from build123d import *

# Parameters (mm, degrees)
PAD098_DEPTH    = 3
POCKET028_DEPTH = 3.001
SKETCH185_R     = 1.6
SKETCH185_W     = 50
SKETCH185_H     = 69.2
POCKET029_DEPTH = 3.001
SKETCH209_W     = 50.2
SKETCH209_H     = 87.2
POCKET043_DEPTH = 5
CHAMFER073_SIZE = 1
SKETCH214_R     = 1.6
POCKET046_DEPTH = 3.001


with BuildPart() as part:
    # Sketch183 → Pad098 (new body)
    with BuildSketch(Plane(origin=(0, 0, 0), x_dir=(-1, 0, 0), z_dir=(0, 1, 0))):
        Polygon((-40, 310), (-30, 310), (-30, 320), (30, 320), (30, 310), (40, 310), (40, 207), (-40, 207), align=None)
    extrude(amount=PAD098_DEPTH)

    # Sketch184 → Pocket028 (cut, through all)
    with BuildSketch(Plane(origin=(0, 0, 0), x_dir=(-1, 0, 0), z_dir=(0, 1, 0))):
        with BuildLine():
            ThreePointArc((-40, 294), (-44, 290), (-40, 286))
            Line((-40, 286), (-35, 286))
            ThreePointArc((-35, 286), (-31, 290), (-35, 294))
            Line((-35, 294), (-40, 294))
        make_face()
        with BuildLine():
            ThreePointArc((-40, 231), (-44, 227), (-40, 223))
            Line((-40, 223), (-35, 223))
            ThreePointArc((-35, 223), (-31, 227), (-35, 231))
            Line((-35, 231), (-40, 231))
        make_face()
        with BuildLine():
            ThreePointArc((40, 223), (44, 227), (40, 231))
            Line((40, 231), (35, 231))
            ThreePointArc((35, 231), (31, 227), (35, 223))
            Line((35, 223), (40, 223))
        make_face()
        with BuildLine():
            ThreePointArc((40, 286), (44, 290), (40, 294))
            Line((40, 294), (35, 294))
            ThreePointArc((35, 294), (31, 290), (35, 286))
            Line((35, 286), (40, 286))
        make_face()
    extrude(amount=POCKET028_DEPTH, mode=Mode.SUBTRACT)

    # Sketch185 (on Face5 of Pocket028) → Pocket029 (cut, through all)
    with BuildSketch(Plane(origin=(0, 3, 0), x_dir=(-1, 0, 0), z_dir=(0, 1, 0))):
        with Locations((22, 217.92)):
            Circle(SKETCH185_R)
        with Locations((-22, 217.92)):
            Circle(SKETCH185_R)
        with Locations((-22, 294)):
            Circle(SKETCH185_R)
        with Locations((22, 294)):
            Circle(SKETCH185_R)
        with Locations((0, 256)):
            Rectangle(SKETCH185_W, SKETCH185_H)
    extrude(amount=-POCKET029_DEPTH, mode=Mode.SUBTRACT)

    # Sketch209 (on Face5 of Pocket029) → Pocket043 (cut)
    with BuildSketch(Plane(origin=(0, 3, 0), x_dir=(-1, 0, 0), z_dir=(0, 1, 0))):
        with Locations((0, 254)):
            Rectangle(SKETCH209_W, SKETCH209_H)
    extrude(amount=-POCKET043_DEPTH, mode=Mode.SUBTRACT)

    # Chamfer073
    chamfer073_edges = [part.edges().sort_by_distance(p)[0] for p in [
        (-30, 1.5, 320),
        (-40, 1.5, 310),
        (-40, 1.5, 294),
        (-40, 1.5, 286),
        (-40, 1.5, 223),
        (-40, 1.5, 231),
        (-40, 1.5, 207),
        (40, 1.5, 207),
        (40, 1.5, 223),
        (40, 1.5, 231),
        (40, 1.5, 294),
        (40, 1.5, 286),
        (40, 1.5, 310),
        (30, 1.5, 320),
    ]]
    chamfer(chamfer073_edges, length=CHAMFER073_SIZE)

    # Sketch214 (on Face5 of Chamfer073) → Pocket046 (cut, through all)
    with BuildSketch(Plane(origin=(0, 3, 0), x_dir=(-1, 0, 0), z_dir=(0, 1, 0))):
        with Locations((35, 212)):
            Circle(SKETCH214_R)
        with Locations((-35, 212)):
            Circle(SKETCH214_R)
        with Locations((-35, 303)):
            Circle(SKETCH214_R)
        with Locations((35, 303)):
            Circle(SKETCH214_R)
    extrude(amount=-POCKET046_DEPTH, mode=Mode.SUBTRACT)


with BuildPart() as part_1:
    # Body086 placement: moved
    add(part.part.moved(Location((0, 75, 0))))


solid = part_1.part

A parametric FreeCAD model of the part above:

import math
import FreeCAD as App
import Part
import Sketcher
Q = App.Units.Quantity


def edges_at(feature, points):
    """Names of the edges that pass closest to the given points."""
    edges = feature.Shape.Edges
    near = lambda p: min(range(len(edges)), key=lambda i: edges[i].distToShape(Part.Vertex(*p))[0])
    return sorted({f"Edge{near(p) + 1}" for p in points})

doc = App.newDocument("Part")
body = doc.addObject("PartDesign::Body", "Body")

sketch1 = body.newObject("Sketcher::SketchObject", "Sketch")
sketch1.AttachmentSupport = (doc.getObject("XZ_Plane"), [""])
sketch1.MapMode = "FlatFace"
sketch1.addGeometry(Part.LineSegment(App.Vector(30, 310, 0), App.Vector(40, 310, 0)), False)
sketch1.addGeometry(Part.LineSegment(App.Vector(40, 310, 0), App.Vector(40, 207, 0)), False)
sketch1.addGeometry(Part.LineSegment(App.Vector(40, 207, 0), App.Vector(-40, 207, 0)), False)
sketch1.addGeometry(Part.LineSegment(App.Vector(-40, 207, 0), App.Vector(-40, 310, 0)), False)
sketch1.addGeometry(Part.LineSegment(App.Vector(-40, 310, 0), App.Vector(-30, 310, 0)), False)
sketch1.addGeometry(Part.LineSegment(App.Vector(-30, 310, 0), App.Vector(-30, 320, 0)), False)
sketch1.addGeometry(Part.LineSegment(App.Vector(-30, 320, 0), App.Vector(30, 320, 0)), False)
sketch1.addGeometry(Part.LineSegment(App.Vector(30, 320, 0), App.Vector(30, 310, 0)), False)
sketch1.addConstraint(Sketcher.Constraint("Coincident", 0, 2, 1, 1))
sketch1.addConstraint(Sketcher.Constraint("Coincident", 1, 2, 2, 1))
sketch1.addConstraint(Sketcher.Constraint("Coincident", 2, 2, 3, 1))
sketch1.addConstraint(Sketcher.Constraint("Coincident", 3, 2, 4, 1))
sketch1.addConstraint(Sketcher.Constraint("Coincident", 4, 2, 5, 1))
sketch1.addConstraint(Sketcher.Constraint("Coincident", 5, 2, 6, 1))
sketch1.addConstraint(Sketcher.Constraint("Coincident", 6, 2, 7, 1))
sketch1.addConstraint(Sketcher.Constraint("Coincident", 7, 2, 0, 1))
sketch1.addConstraint(Sketcher.Constraint("Horizontal", 0))
sketch1.addConstraint(Sketcher.Constraint("Vertical", 1))
sketch1.addConstraint(Sketcher.Constraint("Horizontal", 2))
sketch1.addConstraint(Sketcher.Constraint("Vertical", 3))
sketch1.addConstraint(Sketcher.Constraint("Horizontal", 4))
sketch1.addConstraint(Sketcher.Constraint("Vertical", 5))
sketch1.addConstraint(Sketcher.Constraint("Horizontal", 6))
sketch1.addConstraint(Sketcher.Constraint("Vertical", 7))
sketch1.addConstraint(Sketcher.Constraint("Symmetric", 0, 2, 3, 2, -2))
sketch1.addConstraint(Sketcher.Constraint("Equal", 0, 4))
sketch1.addConstraint(Sketcher.Constraint("Equal", 4, 5))
sketch1.addConstraint(Sketcher.Constraint("DistanceX", 0, 1, 0, 2, Q("10 mm")))
sketch1.addConstraint(Sketcher.Constraint("DistanceX", 2, 2, 2, 1, Q("80 mm")))
sketch1.addConstraint(Sketcher.Constraint("DistanceY", 1, 2, 1, 1, Q("103 mm")))
sketch1.addConstraint(Sketcher.Constraint("DistanceY", -1, 1, 0, 2, Q("310 mm")))
pad1 = body.newObject("PartDesign::Pad", "Pad")
pad1.Profile = sketch1
pad1.Length = 3
pad1.Reversed = True

sketch2 = body.newObject("Sketcher::SketchObject", "Sketch001")
sketch2.AttachmentSupport = (doc.getObject("XZ_Plane"), [""])
sketch2.MapMode = "FlatFace"
sketch2.addGeometry(Part.ArcOfCircle(Part.Circle(App.Vector(40, 290, 0), App.Vector(0, 0, 1), 4), math.radians(-90), math.radians(90)), False)
sketch2.addGeometry(Part.LineSegment(App.Vector(40, 286, 0), App.Vector(35, 286, 0)), False)
sketch2.addGeometry(Part.ArcOfCircle(Part.Circle(App.Vector(35, 290, 0), App.Vector(0, 0, 1), 4), math.radians(90), math.radians(270)), False)
sketch2.addGeometry(Part.LineSegment(App.Vector(35, 294, 0), App.Vector(40, 294, 0)), False)
sketch2.addGeometry(Part.ArcOfCircle(Part.Circle(App.Vector(40, 227, 0), App.Vector(0, 0, 1), 4), math.radians(-90), math.radians(90)), False)
sketch2.addGeometry(Part.LineSegment(App.Vector(40, 223, 0), App.Vector(35, 223, 0)), False)
sketch2.addGeometry(Part.ArcOfCircle(Part.Circle(App.Vector(35, 227, 0), App.Vector(0, 0, 1), 4), math.radians(90), math.radians(270)), False)
sketch2.addGeometry(Part.LineSegment(App.Vector(35, 231, 0), App.Vector(40, 231, 0)), False)
sketch2.addGeometry(Part.ArcOfCircle(Part.Circle(App.Vector(-40, 227, 0), App.Vector(0, 0, 1), 4), math.radians(90), math.radians(270)), False)
sketch2.addGeometry(Part.LineSegment(App.Vector(-40, 231, 0), App.Vector(-35, 231, 0)), False)
sketch2.addGeometry(Part.ArcOfCircle(Part.Circle(App.Vector(-35, 227, 0), App.Vector(0, 0, 1), 4), math.radians(-90), math.radians(90)), False)
sketch2.addGeometry(Part.LineSegment(App.Vector(-35, 223, 0), App.Vector(-40, 223, 0)), False)
sketch2.addGeometry(Part.ArcOfCircle(Part.Circle(App.Vector(-40, 290, 0), App.Vector(0, 0, 1), 4), math.radians(90), math.radians(270)), False)
sketch2.addGeometry(Part.LineSegment(App.Vector(-40, 294, 0), App.Vector(-35, 294, 0)), False)
sketch2.addGeometry(Part.ArcOfCircle(Part.Circle(App.Vector(-35, 290, 0), App.Vector(0, 0, 1), 4), math.radians(-90), math.radians(90)), False)
sketch2.addGeometry(Part.LineSegment(App.Vector(-35, 286, 0), App.Vector(-40, 286, 0)), False)
sketch2.addConstraint(Sketcher.Constraint("Tangent", 0, 1, 1, 1))
sketch2.addConstraint(Sketcher.Constraint("Tangent", 1, 2, 2, 2))
sketch2.addConstraint(Sketcher.Constraint("Tangent", 2, 1, 3, 1))
sketch2.addConstraint(Sketcher.Constraint("Tangent", 3, 2, 0, 2))
sketch2.addConstraint(Sketcher.Constraint("Tangent", 4, 1, 5, 1))
sketch2.addConstraint(Sketcher.Constraint("Tangent", 5, 2, 6, 2))
sketch2.addConstraint(Sketcher.Constraint("Tangent", 6, 1, 7, 1))
sketch2.addConstraint(Sketcher.Constraint("Tangent", 7, 2, 4, 2))
sketch2.addConstraint(Sketcher.Constraint("Tangent", 8, 1, 9, 1))
sketch2.addConstraint(Sketcher.Constraint("Tangent", 9, 2, 10, 2))
sketch2.addConstraint(Sketcher.Constraint("Tangent", 10, 1, 11, 1))
sketch2.addConstraint(Sketcher.Constraint("Tangent", 11, 2, 8, 2))
sketch2.addConstraint(Sketcher.Constraint("Tangent", 12, 1, 13, 1))
sketch2.addConstraint(Sketcher.Constraint("Tangent", 13, 2, 14, 2))
sketch2.addConstraint(Sketcher.Constraint("Tangent", 14, 1, 15, 1))
sketch2.addConstraint(Sketcher.Constraint("Tangent", 15, 2, 12, 2))
sketch2.addConstraint(Sketcher.Constraint("Horizontal", 1))
sketch2.addConstraint(Sketcher.Constraint("Horizontal", 3))
sketch2.addConstraint(Sketcher.Constraint("Horizontal", 5))
sketch2.addConstraint(Sketcher.Constraint("Horizontal", 7))
sketch2.addConstraint(Sketcher.Constraint("Horizontal", 9))
sketch2.addConstraint(Sketcher.Constraint("Horizontal", 11))
sketch2.addConstraint(Sketcher.Constraint("Horizontal", 13))
sketch2.addConstraint(Sketcher.Constraint("Horizontal", 15))
sketch2.addConstraint(Sketcher.Constraint("Equal", 2, 4))
sketch2.addConstraint(Sketcher.Constraint("Equal", 6, 8))
sketch2.addConstraint(Sketcher.Constraint("Equal", 10, 12))
sketch2.addConstraint(Sketcher.Constraint("Symmetric", 4, 3, 8, 3, -2))
sketch2.addConstraint(Sketcher.Constraint("Symmetric", 0, 3, 12, 3, -2))
sketch2.addConstraint(Sketcher.Constraint("Vertical", 0, 3, 4, 3))
sketch2.addConstraint(Sketcher.Constraint("Vertical", 2, 3, 6, 3))
sketch2.addConstraint(Sketcher.Constraint("Vertical", 10, 3, 14, 3))
sketch2.addConstraint(Sketcher.Constraint("Equal", 7, 9))
sketch2.addConstraint(Sketcher.Constraint("Radius", 0, Q("4 mm")))
sketch2.addConstraint(Sketcher.Constraint("DistanceX", 1, 2, 1, 1, Q("5 mm")))
sketch2.addConstraint(Sketcher.Constraint("DistanceX", -1, 1, 0, 3, Q("40 mm")))
sketch2.addConstraint(Sketcher.Constraint("DistanceY", -1, 1, 0, 3, Q("290 mm")))
sketch2.addConstraint(Sketcher.Constraint("DistanceY", -1, 1, 4, 3, Q("227 mm")))
pocket1 = body.newObject("PartDesign::Pocket", "Pocket")
pocket1.Profile = sketch2
pocket1.Type = "ThroughAll"

sketch3 = body.newObject("Sketcher::SketchObject", "Sketch002")
sketch3.AttachmentSupport = (doc.getObject("XZ_Plane"), [""])
sketch3.MapMode = "FlatFace"
sketch3.AttachmentOffset = App.Placement(App.Vector(0, 0, -3), App.Rotation())
sketch3.addGeometry(Part.Circle(App.Vector(-22, 217.9, 0), App.Vector(0, 0, 1), 1.6), False)
sketch3.addGeometry(Part.Circle(App.Vector(22, 217.9, 0), App.Vector(0, 0, 1), 1.6), False)
sketch3.addGeometry(Part.Circle(App.Vector(22, 294, 0), App.Vector(0, 0, 1), 1.6), False)
sketch3.addGeometry(Part.Circle(App.Vector(-22, 294, 0), App.Vector(0, 0, 1), 1.6), False)
sketch3.addGeometry(Part.LineSegment(App.Vector(25, 290.6, 0), App.Vector(25, 221.4, 0)), False)
sketch3.addGeometry(Part.LineSegment(App.Vector(25, 221.4, 0), App.Vector(-25, 221.4, 0)), False)
sketch3.addGeometry(Part.LineSegment(App.Vector(-25, 221.4, 0), App.Vector(-25, 290.6, 0)), False)
sketch3.addGeometry(Part.LineSegment(App.Vector(-25, 290.6, 0), App.Vector(25, 290.6, 0)), False)
sketch3.addConstraint(Sketcher.Constraint("Coincident", 4, 2, 5, 1))
sketch3.addConstraint(Sketcher.Constraint("Coincident", 5, 2, 6, 1))
sketch3.addConstraint(Sketcher.Constraint("Coincident", 6, 2, 7, 1))
sketch3.addConstraint(Sketcher.Constraint("Coincident", 7, 2, 4, 1))
sketch3.addConstraint(Sketcher.Constraint("Vertical", 4))
sketch3.addConstraint(Sketcher.Constraint("Horizontal", 5))
sketch3.addConstraint(Sketcher.Constraint("Vertical", 6))
sketch3.addConstraint(Sketcher.Constraint("Horizontal", 7))
sketch3.addConstraint(Sketcher.Constraint("Equal", 0, 1))
sketch3.addConstraint(Sketcher.Constraint("Equal", 1, 2))
sketch3.addConstraint(Sketcher.Constraint("Equal", 2, 3))
sketch3.addConstraint(Sketcher.Constraint("Symmetric", 0, 3, 1, 3, -2))
sketch3.addConstraint(Sketcher.Constraint("Symmetric", 2, 3, 3, 3, -2))
sketch3.addConstraint(Sketcher.Constraint("Vertical", 1, 3, 2, 3))
sketch3.addConstraint(Sketcher.Constraint("Diameter", 0, Q("3.2 mm")))
sketch3.addConstraint(Sketcher.Constraint("DistanceX", 5, 2, 5, 1, Q("50 mm")))
sketch3.addConstraint(Sketcher.Constraint("DistanceY", 4, 2, 4, 1, Q("69.2 mm")))
sketch3.addConstraint(Sketcher.Constraint("DistanceX", 0, 3, -1, 1, Q("22 mm")))
sketch3.addConstraint(Sketcher.Constraint("DistanceY", -1, 1, 2, 3, Q("294 mm")))
sketch3.addConstraint(Sketcher.Constraint("DistanceX", -1, 1, 4, 2, Q("25 mm")))
sketch3.addConstraint(Sketcher.Constraint("DistanceY", -1, 1, 4, 2, Q("221.4 mm")))
sketch3.addConstraint(Sketcher.Constraint("DistanceY", -1, 1, 0, 3, Q("217.92 mm")))
pocket2 = body.newObject("PartDesign::Pocket", "Pocket001")
pocket2.Profile = sketch3
pocket2.Type = "ThroughAll"
pocket2.Reversed = True

sketch4 = body.newObject("Sketcher::SketchObject", "Sketch003")
sketch4.AttachmentSupport = (doc.getObject("XZ_Plane"), [""])
sketch4.MapMode = "FlatFace"
sketch4.AttachmentOffset = App.Placement(App.Vector(0, 0, -3), App.Rotation())
sketch4.addGeometry(Part.LineSegment(App.Vector(25, 298, 0), App.Vector(25, 210, 0)), False)
sketch4.addGeometry(Part.LineSegment(App.Vector(25, 210, 0), App.Vector(-25, 210, 0)), False)
sketch4.addGeometry(Part.LineSegment(App.Vector(-25, 210, 0), App.Vector(-25, 298, 0)), False)
sketch4.addGeometry(Part.LineSegment(App.Vector(-25, 298, 0), App.Vector(25, 298, 0)), False)
sketch4.addConstraint(Sketcher.Constraint("Coincident", 0, 2, 1, 1))
sketch4.addConstraint(Sketcher.Constraint("Coincident", 1, 2, 2, 1))
sketch4.addConstraint(Sketcher.Constraint("Coincident", 2, 2, 3, 1))
sketch4.addConstraint(Sketcher.Constraint("Coincident", 3, 2, 0, 1))
sketch4.addConstraint(Sketcher.Constraint("Vertical", 0))
sketch4.addConstraint(Sketcher.Constraint("Horizontal", 1))
sketch4.addConstraint(Sketcher.Constraint("Vertical", 2))
sketch4.addConstraint(Sketcher.Constraint("Horizontal", 3))
sketch4.addConstraint(Sketcher.Constraint("DistanceX", 1, 2, 1, 1, Q("50.2 mm")))
sketch4.addConstraint(Sketcher.Constraint("DistanceY", 0, 2, 0, 1, Q("87.2 mm")))
sketch4.addConstraint(Sketcher.Constraint("DistanceX", -1, 1, 0, 2, Q("25.1 mm")))
sketch4.addConstraint(Sketcher.Constraint("DistanceY", -1, 1, 0, 2, Q("210.4 mm")))
pocket3 = body.newObject("PartDesign::Pocket", "Pocket002")
pocket3.Profile = sketch4
pocket3.Length = 5
pocket3.Reversed = True
doc.recompute()

chamfer = body.newObject("PartDesign::Chamfer", "Chamfer")
chamfer.Base = (pocket3, edges_at(pocket3, [
    (-30, 1.5, 320),
    (-40, 1.5, 310),
    (-40, 1.5, 294),
    (-40, 1.5, 286),
    (-40, 1.5, 223),
    (-40, 1.5, 231),
    (-40, 1.5, 207),
    (40, 1.5, 207),
    (40, 1.5, 223),
    (40, 1.5, 231),
    (40, 1.5, 294),
    (40, 1.5, 286),
    (40, 1.5, 310),
    (30, 1.5, 320),
]))
chamfer.Size = 1

sketch5 = body.newObject("Sketcher::SketchObject", "Sketch004")
sketch5.AttachmentSupport = (doc.getObject("XZ_Plane"), [""])
sketch5.MapMode = "FlatFace"
sketch5.AttachmentOffset = App.Placement(App.Vector(0, 0, -3), App.Rotation())
sketch5.addGeometry(Part.Circle(App.Vector(-35, 212, 0), App.Vector(0, 0, 1), 1.6), False)
sketch5.addGeometry(Part.Circle(App.Vector(35, 212, 0), App.Vector(0, 0, 1), 1.6), False)
sketch5.addGeometry(Part.Circle(App.Vector(35, 303, 0), App.Vector(0, 0, 1), 1.6), False)
sketch5.addGeometry(Part.Circle(App.Vector(-35, 303, 0), App.Vector(0, 0, 1), 1.6), False)
sketch5.addConstraint(Sketcher.Constraint("Equal", 0, 1))
sketch5.addConstraint(Sketcher.Constraint("Equal", 1, 2))
sketch5.addConstraint(Sketcher.Constraint("Equal", 2, 3))
sketch5.addConstraint(Sketcher.Constraint("Symmetric", 0, 3, 1, 3, -2))
sketch5.addConstraint(Sketcher.Constraint("Symmetric", 2, 3, 3, 3, -2))
sketch5.addConstraint(Sketcher.Constraint("Vertical", 1, 3, 2, 3))
sketch5.addConstraint(Sketcher.Constraint("Diameter", 0, Q("3.2 mm")))
sketch5.addConstraint(Sketcher.Constraint("DistanceX", 0, 3, -1, 1, Q("35 mm")))
sketch5.addConstraint(Sketcher.Constraint("DistanceY", -1, 1, 0, 3, Q("212 mm")))
sketch5.addConstraint(Sketcher.Constraint("DistanceY", -1, 1, 2, 3, Q("303 mm")))
pocket4 = body.newObject("PartDesign::Pocket", "Pocket003")
pocket4.Profile = sketch5
pocket4.Type = "ThroughAll"
pocket4.Reversed = True
body2 = doc.addObject("PartDesign::Body", "Body001")
doc.recompute()

body.Placement = App.Placement(App.Vector(0, 75, 0), App.Rotation(App.Vector(0, 0, 1), 0))
boolean = body2.newObject("PartDesign::Boolean", "Boolean")
boolean.Type = "Fuse"
boolean.addObjects([body])

doc.recompute()
